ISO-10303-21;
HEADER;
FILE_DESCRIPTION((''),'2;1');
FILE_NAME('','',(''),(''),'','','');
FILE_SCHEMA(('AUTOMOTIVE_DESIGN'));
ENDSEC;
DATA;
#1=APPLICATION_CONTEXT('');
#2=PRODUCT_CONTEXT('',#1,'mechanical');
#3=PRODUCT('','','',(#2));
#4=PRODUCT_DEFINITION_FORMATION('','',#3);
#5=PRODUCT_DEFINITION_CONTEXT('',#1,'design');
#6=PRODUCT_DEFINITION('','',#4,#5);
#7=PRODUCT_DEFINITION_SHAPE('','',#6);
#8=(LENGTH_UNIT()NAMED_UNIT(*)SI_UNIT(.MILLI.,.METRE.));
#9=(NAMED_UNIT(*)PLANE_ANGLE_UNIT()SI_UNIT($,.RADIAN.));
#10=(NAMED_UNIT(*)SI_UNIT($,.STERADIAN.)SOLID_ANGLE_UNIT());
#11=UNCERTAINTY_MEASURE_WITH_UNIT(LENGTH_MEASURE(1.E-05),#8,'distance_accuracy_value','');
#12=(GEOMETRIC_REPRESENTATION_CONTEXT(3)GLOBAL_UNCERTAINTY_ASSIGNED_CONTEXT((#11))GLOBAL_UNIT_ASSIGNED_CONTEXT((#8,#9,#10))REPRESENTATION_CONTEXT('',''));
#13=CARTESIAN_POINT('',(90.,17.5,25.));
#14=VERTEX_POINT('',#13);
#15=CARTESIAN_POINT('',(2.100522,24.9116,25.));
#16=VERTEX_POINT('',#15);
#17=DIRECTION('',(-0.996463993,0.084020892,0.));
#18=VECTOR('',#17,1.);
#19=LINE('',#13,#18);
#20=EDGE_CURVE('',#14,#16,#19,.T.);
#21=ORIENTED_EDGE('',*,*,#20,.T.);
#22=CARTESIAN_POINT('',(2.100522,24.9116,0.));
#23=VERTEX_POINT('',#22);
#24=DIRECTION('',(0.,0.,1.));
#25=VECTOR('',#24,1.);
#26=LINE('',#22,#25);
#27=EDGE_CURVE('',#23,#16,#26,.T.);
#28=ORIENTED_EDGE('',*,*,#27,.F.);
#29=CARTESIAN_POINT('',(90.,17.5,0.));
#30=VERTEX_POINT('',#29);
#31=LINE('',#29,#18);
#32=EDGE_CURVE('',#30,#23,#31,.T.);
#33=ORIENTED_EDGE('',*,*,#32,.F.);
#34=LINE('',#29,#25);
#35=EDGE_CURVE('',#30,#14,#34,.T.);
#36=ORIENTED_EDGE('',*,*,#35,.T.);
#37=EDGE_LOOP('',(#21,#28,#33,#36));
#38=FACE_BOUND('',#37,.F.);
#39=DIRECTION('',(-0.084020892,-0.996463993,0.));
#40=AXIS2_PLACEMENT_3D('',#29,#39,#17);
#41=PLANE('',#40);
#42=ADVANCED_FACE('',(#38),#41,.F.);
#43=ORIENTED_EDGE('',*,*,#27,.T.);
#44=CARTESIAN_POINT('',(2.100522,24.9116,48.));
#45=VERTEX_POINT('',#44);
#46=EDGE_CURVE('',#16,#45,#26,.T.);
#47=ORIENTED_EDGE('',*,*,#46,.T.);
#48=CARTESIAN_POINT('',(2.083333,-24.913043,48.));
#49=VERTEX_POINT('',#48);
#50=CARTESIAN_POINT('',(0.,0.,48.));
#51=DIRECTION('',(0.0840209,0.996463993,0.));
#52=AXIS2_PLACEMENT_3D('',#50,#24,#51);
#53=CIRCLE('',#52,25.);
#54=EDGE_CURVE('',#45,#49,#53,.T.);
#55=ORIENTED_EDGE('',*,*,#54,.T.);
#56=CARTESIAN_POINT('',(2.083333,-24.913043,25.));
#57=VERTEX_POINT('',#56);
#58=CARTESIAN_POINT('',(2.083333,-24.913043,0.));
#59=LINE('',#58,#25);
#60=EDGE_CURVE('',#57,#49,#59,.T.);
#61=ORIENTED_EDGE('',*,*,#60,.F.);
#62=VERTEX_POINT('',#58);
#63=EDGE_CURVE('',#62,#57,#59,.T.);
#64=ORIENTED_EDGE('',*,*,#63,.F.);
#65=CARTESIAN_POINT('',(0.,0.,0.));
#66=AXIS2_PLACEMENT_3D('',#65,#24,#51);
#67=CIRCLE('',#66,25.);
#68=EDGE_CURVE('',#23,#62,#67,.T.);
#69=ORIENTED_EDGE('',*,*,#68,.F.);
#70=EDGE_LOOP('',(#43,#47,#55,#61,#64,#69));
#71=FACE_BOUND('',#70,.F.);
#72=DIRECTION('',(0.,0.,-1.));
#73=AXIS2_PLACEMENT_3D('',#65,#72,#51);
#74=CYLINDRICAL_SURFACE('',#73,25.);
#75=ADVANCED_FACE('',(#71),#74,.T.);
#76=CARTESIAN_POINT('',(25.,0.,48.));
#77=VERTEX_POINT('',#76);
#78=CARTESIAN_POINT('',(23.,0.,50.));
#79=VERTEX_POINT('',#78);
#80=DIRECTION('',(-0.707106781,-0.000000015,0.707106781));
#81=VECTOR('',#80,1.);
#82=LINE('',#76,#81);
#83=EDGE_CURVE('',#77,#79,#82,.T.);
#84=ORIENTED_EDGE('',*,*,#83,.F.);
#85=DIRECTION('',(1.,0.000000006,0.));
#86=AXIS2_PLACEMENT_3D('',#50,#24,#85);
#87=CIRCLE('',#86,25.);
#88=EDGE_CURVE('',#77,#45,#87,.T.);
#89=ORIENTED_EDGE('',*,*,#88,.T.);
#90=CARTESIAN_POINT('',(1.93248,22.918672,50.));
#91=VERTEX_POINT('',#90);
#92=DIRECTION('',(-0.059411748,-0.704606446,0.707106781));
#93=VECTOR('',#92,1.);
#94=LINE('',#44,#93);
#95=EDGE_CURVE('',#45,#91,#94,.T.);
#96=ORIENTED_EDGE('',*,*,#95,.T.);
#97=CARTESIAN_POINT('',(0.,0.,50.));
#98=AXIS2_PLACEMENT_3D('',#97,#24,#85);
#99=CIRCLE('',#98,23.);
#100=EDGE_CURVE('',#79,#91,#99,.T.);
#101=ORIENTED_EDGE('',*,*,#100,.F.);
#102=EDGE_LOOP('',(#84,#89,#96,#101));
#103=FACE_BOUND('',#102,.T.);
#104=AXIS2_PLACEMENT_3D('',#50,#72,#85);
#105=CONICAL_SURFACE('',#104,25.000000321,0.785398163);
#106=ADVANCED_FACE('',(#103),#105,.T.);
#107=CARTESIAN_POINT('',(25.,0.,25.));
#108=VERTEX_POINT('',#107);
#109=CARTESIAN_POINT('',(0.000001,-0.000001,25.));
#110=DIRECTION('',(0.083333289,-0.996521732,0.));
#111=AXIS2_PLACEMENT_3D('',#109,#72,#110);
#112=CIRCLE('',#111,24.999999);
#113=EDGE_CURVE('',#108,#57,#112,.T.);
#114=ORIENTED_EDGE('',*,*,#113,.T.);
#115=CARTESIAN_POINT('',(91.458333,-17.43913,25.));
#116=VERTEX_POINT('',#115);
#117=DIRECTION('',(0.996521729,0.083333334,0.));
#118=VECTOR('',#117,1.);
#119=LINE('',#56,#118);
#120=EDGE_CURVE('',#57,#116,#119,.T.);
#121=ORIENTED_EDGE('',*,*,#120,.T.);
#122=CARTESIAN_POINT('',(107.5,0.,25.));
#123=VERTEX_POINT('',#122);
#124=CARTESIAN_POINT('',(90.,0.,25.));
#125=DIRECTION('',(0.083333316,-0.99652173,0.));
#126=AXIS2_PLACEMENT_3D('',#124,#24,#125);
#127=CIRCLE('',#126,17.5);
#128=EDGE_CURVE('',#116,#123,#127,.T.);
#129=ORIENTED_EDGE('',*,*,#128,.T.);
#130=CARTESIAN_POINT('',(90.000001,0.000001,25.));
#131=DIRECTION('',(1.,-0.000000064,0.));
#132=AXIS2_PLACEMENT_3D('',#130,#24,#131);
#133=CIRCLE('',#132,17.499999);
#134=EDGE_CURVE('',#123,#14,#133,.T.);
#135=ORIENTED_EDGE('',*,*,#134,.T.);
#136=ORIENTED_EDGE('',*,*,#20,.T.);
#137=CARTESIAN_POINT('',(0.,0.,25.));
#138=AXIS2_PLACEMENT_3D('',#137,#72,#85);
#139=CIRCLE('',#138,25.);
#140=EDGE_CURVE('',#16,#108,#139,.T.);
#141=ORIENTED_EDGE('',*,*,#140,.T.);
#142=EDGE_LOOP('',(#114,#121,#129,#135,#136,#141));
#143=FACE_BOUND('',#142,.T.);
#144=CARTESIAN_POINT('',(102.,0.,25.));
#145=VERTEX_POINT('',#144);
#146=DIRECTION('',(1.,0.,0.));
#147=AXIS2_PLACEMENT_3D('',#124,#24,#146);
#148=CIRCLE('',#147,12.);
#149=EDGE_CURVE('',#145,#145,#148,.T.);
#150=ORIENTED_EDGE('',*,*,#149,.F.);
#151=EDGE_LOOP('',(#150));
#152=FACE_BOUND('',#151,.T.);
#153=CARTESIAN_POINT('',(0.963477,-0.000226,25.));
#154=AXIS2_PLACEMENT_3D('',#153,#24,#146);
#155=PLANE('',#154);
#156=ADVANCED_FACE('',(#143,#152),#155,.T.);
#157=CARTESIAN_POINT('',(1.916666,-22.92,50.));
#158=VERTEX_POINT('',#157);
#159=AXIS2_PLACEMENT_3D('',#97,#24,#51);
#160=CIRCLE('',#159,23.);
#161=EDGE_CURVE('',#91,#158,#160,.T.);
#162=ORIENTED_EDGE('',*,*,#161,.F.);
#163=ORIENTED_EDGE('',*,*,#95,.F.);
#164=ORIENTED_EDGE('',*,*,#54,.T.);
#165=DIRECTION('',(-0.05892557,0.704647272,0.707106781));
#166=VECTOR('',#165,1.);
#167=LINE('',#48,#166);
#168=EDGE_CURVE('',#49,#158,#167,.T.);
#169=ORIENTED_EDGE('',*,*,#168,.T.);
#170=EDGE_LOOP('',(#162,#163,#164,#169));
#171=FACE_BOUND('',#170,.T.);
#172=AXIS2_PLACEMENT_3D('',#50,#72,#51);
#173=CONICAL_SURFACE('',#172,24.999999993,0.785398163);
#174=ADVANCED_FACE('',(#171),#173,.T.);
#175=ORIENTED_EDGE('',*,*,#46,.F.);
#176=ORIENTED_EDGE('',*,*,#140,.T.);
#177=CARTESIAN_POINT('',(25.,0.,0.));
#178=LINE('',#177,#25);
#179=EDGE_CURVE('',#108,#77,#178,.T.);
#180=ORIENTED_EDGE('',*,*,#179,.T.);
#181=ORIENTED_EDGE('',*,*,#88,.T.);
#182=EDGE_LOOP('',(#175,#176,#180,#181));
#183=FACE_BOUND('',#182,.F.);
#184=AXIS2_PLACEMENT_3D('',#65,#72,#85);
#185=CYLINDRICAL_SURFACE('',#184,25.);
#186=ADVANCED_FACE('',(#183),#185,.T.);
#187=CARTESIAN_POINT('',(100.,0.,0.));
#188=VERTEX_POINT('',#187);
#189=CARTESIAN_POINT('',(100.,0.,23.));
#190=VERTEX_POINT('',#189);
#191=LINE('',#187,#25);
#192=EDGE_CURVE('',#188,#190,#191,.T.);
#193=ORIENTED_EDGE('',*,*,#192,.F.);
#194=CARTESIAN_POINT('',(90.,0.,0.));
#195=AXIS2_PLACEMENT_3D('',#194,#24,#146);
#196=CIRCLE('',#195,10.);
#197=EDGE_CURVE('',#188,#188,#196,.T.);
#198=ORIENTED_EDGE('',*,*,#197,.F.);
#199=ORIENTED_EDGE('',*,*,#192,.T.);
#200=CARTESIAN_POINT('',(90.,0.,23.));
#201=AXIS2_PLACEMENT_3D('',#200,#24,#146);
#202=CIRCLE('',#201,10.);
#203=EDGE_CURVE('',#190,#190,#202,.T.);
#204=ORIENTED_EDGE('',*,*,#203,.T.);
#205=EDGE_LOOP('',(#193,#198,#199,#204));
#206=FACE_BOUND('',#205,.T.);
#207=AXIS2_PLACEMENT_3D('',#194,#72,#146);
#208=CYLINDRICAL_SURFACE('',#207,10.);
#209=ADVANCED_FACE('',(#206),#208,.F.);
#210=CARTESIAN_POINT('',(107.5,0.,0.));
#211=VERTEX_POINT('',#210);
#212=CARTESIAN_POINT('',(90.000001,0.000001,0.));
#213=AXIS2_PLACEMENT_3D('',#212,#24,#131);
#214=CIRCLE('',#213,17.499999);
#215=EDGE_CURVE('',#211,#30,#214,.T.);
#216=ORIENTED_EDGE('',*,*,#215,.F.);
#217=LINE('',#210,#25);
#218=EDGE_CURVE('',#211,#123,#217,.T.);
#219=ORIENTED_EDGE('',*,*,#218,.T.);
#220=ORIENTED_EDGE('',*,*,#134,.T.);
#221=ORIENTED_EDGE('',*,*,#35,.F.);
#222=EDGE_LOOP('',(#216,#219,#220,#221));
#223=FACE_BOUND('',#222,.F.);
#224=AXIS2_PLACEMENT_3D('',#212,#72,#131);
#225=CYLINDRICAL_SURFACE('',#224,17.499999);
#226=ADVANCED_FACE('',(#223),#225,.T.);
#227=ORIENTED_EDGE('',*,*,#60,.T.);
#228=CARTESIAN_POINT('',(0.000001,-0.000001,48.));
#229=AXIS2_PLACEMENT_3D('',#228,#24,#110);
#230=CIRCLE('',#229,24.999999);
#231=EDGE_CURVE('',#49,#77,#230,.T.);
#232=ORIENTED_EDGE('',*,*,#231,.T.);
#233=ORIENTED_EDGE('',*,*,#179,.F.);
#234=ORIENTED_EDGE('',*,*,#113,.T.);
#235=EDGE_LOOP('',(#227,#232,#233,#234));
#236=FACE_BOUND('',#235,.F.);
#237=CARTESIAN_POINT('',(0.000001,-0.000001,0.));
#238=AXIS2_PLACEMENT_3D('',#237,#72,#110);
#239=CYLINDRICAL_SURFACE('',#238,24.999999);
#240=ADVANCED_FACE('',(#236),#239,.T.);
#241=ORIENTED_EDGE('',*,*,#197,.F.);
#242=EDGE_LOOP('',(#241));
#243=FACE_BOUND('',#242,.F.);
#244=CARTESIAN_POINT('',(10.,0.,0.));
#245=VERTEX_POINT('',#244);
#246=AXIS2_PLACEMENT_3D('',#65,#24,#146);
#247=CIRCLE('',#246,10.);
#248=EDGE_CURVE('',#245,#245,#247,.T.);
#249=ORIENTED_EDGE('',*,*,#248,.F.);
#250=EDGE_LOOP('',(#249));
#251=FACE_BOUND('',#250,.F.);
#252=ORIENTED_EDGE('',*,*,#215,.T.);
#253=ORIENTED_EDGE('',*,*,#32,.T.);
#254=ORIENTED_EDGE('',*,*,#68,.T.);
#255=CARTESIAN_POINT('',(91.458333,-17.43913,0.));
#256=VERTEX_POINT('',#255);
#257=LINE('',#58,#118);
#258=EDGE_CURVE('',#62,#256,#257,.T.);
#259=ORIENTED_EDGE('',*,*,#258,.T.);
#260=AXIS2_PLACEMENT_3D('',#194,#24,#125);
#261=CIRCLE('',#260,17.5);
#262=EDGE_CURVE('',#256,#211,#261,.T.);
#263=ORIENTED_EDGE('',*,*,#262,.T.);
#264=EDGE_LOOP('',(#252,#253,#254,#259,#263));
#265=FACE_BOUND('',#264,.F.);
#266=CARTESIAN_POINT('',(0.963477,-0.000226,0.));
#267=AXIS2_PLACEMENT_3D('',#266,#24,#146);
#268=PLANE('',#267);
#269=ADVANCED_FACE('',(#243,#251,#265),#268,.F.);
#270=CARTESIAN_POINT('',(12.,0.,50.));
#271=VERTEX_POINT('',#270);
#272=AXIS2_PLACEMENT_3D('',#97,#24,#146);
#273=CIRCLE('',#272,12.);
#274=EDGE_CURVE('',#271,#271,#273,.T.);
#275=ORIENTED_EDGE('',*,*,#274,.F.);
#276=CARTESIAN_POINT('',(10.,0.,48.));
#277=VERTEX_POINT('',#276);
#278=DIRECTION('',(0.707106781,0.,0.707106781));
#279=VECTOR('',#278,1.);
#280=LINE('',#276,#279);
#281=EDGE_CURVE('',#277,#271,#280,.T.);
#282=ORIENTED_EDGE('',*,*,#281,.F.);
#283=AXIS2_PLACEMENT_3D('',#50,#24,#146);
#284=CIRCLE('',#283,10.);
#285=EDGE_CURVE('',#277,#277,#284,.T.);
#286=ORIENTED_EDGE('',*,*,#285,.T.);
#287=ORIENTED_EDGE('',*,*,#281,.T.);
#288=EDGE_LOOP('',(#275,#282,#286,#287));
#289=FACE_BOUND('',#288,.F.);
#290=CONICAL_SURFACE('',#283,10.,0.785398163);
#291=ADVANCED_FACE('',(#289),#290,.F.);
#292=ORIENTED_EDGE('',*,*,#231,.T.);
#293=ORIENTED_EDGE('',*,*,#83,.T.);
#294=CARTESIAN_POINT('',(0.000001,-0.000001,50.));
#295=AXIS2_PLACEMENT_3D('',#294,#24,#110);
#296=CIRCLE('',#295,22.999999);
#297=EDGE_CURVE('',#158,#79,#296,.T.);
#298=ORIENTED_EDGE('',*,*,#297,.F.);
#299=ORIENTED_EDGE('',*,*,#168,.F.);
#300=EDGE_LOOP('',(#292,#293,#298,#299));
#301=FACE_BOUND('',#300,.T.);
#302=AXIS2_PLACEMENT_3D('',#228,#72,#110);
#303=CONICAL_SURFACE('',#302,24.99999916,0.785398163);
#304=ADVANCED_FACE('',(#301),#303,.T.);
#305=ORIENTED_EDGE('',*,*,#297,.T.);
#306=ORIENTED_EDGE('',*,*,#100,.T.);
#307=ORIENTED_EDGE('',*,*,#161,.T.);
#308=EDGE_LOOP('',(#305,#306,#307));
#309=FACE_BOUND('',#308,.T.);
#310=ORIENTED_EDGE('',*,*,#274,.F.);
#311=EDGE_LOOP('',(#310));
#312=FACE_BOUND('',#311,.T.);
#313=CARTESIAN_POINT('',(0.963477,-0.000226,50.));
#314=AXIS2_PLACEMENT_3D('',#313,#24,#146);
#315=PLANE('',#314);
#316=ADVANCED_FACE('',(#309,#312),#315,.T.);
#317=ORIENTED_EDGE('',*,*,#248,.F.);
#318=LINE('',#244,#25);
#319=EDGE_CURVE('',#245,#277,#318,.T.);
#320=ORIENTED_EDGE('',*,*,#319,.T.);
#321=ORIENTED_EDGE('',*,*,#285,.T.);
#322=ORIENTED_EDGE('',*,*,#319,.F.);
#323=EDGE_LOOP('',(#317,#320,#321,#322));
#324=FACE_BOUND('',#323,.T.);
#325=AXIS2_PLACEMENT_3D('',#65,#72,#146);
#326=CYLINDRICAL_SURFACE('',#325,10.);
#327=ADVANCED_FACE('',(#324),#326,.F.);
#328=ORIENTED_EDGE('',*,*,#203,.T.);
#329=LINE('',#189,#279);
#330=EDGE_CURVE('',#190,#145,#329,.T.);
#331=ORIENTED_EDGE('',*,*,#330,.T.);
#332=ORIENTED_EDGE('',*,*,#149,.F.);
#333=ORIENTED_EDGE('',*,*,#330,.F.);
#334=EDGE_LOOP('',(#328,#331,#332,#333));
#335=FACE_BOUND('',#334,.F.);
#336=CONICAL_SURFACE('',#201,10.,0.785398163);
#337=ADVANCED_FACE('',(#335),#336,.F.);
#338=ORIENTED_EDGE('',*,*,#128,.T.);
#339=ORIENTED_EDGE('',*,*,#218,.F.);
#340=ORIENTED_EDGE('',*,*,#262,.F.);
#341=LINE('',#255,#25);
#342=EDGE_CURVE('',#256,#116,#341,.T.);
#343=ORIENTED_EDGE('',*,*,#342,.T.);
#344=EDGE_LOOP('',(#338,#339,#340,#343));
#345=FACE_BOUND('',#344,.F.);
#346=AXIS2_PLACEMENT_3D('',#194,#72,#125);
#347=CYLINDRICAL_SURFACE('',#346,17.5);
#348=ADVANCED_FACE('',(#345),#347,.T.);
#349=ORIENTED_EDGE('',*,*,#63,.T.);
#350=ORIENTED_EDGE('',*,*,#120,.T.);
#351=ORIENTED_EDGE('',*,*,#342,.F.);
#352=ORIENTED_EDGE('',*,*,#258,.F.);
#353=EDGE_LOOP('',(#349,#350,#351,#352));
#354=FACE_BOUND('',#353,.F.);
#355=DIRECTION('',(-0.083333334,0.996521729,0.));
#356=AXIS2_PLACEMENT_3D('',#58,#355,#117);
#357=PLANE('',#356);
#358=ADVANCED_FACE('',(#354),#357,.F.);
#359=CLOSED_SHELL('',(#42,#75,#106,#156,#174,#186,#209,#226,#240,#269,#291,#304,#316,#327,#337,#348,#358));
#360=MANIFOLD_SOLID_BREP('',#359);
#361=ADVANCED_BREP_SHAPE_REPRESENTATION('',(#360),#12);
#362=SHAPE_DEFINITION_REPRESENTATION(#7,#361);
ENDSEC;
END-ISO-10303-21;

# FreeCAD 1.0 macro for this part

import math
import FreeCAD as App
import Part
import Sketcher
Q = App.Units.Quantity


def edges_at(feature, points):
    """Names of the edges that pass closest to the given points."""
    edges = feature.Shape.Edges
    near = lambda p: min(range(len(edges)), key=lambda i: edges[i].distToShape(Part.Vertex(*p))[0])
    return sorted({f"Edge{near(p) + 1}" for p in points})

doc = App.newDocument("Part")
body = doc.addObject("PartDesign::Body", "Body")

sketch1 = doc.addObject("Sketcher::SketchObject", "Sketch")
body.addObject(sketch1)
sketch1.AttachmentSupport = (doc.XY_Plane, [""])
sketch1.MapMode = "FlatFace"
sketch1.addGeometry([
    Part.ArcOfCircle(Part.Circle(App.Vector(0, 0, 0), App.Vector(0, 0, 1), 25), math.radians(85), math.radians(275)),
    Part.LineSegment(App.Vector(2, -25, 0), App.Vector(91, -17, 0)),
    Part.ArcOfCircle(Part.Circle(App.Vector(90, 0, 0), App.Vector(0, 0, 1), 18), math.radians(-85), math.radians(0)),
    Part.ArcOfCircle(Part.Circle(App.Vector(90, 0, 0), App.Vector(0, 0, 1), 17), math.radians(0), math.radians(90)),
    Part.LineSegment(App.Vector(90, 18, 0), App.Vector(2, 25, 0)),
    Part.Circle(App.Vector(0, 0, 0), App.Vector(0, 0, 1), 10),
    Part.Circle(App.Vector(90, 0, 0), App.Vector(0, 0, 1), 10),
], False)
sketch1.addConstraint([
    Sketcher.Constraint("Tangent", 0, 2, 1, 1),
    Sketcher.Constraint("Tangent", 1, 2, 2, 1),
    Sketcher.Constraint("Tangent", 2, 2, 3, 1),
    Sketcher.Constraint("Coincident", 3, 2, 4, 1),
    Sketcher.Constraint("Tangent", 4, 2, 0, 1),
    Sketcher.Constraint("Coincident", 0, 3, -1, 1),
    Sketcher.Constraint("Coincident", 5, 3, -1, 1),
    Sketcher.Constraint("Coincident", 6, 3, 2, 3),
    Sketcher.Constraint("Equal", 2, 3),
    Sketcher.Constraint("Equal", 5, 6),
    Sketcher.Constraint("PointOnObject", 2, 3, -1),
    Sketcher.Constraint("PointOnObject", 2, 2, -1),
    Sketcher.Constraint("Vertical", 6, 3, 3, 2),
    Sketcher.Constraint("Diameter", 5, Q("20 mm")),
    Sketcher.Constraint("Radius", 0, Q("25 mm")),
    Sketcher.Constraint("Radius", 2, Q("17.5 mm")),
    Sketcher.Constraint("DistanceX", -1, 1, 2, 3, Q("90 mm")),
])
pad1 = doc.addObject("PartDesign::Pad", "Pad")
body.addObject(pad1)
pad1.Profile = sketch1
pad1.Length = 25

sketch2 = doc.addObject("Sketcher::SketchObject", "Sketch001")
body.addObject(sketch2)
sketch2.AttachmentSupport = (doc.XY_Plane, [""])
sketch2.MapMode = "FlatFace"
sketch2.addGeometry([
    Part.ArcOfCircle(Part.Circle(App.Vector(0, 0, 0), App.Vector(0, 0, 1), 25), math.radians(-85), math.radians(0)),
    Part.ArcOfCircle(Part.Circle(App.Vector(0, 0, 0), App.Vector(0, 0, 1), 25), math.radians(0), math.radians(85)),
    Part.ArcOfCircle(Part.Circle(App.Vector(0, 0, 0), App.Vector(0, 0, 1), 25), math.radians(85), math.radians(275)),
    Part.Circle(App.Vector(0, 0, 0), App.Vector(0, 0, 1), 10),
], False)
sketch2.addConstraint([
    Sketcher.Constraint("Tangent", 0, 2, 1, 1),
    Sketcher.Constraint("Tangent", 1, 2, 2, 1),
    Sketcher.Constraint("Tangent", 2, 2, 0, 1),
    Sketcher.Constraint("Coincident", 0, 3, -1, 1),
    Sketcher.Constraint("Coincident", 3, 3, -1, 1),
    Sketcher.Constraint("PointOnObject", 0, 2, -1),
    Sketcher.Constraint("Diameter", 3, Q("20 mm")),
    Sketcher.Constraint("Radius", 0, Q("24.999999 mm")),
    Sketcher.Constraint("DistanceY", -1, 1, 1, 2, Q("24.9116 mm")),
    Sketcher.Constraint("DistanceX", -1, 1, 2, 2, Q("2.083333 mm")),
])
pad2 = doc.addObject("PartDesign::Pad", "Pad001")
body.addObject(pad2)
pad2.Profile = sketch2
pad2.Length = 50
doc.recompute()

chamfer = doc.addObject("PartDesign::Chamfer", "Chamfer")
body.addObject(chamfer)
chamfer.Base = (pad2, edges_at(pad2, [(-25, 0.009, 50), (80, 0, 25), (-10, 0, 50)]))
chamfer.Size = 2

doc.recompute()
